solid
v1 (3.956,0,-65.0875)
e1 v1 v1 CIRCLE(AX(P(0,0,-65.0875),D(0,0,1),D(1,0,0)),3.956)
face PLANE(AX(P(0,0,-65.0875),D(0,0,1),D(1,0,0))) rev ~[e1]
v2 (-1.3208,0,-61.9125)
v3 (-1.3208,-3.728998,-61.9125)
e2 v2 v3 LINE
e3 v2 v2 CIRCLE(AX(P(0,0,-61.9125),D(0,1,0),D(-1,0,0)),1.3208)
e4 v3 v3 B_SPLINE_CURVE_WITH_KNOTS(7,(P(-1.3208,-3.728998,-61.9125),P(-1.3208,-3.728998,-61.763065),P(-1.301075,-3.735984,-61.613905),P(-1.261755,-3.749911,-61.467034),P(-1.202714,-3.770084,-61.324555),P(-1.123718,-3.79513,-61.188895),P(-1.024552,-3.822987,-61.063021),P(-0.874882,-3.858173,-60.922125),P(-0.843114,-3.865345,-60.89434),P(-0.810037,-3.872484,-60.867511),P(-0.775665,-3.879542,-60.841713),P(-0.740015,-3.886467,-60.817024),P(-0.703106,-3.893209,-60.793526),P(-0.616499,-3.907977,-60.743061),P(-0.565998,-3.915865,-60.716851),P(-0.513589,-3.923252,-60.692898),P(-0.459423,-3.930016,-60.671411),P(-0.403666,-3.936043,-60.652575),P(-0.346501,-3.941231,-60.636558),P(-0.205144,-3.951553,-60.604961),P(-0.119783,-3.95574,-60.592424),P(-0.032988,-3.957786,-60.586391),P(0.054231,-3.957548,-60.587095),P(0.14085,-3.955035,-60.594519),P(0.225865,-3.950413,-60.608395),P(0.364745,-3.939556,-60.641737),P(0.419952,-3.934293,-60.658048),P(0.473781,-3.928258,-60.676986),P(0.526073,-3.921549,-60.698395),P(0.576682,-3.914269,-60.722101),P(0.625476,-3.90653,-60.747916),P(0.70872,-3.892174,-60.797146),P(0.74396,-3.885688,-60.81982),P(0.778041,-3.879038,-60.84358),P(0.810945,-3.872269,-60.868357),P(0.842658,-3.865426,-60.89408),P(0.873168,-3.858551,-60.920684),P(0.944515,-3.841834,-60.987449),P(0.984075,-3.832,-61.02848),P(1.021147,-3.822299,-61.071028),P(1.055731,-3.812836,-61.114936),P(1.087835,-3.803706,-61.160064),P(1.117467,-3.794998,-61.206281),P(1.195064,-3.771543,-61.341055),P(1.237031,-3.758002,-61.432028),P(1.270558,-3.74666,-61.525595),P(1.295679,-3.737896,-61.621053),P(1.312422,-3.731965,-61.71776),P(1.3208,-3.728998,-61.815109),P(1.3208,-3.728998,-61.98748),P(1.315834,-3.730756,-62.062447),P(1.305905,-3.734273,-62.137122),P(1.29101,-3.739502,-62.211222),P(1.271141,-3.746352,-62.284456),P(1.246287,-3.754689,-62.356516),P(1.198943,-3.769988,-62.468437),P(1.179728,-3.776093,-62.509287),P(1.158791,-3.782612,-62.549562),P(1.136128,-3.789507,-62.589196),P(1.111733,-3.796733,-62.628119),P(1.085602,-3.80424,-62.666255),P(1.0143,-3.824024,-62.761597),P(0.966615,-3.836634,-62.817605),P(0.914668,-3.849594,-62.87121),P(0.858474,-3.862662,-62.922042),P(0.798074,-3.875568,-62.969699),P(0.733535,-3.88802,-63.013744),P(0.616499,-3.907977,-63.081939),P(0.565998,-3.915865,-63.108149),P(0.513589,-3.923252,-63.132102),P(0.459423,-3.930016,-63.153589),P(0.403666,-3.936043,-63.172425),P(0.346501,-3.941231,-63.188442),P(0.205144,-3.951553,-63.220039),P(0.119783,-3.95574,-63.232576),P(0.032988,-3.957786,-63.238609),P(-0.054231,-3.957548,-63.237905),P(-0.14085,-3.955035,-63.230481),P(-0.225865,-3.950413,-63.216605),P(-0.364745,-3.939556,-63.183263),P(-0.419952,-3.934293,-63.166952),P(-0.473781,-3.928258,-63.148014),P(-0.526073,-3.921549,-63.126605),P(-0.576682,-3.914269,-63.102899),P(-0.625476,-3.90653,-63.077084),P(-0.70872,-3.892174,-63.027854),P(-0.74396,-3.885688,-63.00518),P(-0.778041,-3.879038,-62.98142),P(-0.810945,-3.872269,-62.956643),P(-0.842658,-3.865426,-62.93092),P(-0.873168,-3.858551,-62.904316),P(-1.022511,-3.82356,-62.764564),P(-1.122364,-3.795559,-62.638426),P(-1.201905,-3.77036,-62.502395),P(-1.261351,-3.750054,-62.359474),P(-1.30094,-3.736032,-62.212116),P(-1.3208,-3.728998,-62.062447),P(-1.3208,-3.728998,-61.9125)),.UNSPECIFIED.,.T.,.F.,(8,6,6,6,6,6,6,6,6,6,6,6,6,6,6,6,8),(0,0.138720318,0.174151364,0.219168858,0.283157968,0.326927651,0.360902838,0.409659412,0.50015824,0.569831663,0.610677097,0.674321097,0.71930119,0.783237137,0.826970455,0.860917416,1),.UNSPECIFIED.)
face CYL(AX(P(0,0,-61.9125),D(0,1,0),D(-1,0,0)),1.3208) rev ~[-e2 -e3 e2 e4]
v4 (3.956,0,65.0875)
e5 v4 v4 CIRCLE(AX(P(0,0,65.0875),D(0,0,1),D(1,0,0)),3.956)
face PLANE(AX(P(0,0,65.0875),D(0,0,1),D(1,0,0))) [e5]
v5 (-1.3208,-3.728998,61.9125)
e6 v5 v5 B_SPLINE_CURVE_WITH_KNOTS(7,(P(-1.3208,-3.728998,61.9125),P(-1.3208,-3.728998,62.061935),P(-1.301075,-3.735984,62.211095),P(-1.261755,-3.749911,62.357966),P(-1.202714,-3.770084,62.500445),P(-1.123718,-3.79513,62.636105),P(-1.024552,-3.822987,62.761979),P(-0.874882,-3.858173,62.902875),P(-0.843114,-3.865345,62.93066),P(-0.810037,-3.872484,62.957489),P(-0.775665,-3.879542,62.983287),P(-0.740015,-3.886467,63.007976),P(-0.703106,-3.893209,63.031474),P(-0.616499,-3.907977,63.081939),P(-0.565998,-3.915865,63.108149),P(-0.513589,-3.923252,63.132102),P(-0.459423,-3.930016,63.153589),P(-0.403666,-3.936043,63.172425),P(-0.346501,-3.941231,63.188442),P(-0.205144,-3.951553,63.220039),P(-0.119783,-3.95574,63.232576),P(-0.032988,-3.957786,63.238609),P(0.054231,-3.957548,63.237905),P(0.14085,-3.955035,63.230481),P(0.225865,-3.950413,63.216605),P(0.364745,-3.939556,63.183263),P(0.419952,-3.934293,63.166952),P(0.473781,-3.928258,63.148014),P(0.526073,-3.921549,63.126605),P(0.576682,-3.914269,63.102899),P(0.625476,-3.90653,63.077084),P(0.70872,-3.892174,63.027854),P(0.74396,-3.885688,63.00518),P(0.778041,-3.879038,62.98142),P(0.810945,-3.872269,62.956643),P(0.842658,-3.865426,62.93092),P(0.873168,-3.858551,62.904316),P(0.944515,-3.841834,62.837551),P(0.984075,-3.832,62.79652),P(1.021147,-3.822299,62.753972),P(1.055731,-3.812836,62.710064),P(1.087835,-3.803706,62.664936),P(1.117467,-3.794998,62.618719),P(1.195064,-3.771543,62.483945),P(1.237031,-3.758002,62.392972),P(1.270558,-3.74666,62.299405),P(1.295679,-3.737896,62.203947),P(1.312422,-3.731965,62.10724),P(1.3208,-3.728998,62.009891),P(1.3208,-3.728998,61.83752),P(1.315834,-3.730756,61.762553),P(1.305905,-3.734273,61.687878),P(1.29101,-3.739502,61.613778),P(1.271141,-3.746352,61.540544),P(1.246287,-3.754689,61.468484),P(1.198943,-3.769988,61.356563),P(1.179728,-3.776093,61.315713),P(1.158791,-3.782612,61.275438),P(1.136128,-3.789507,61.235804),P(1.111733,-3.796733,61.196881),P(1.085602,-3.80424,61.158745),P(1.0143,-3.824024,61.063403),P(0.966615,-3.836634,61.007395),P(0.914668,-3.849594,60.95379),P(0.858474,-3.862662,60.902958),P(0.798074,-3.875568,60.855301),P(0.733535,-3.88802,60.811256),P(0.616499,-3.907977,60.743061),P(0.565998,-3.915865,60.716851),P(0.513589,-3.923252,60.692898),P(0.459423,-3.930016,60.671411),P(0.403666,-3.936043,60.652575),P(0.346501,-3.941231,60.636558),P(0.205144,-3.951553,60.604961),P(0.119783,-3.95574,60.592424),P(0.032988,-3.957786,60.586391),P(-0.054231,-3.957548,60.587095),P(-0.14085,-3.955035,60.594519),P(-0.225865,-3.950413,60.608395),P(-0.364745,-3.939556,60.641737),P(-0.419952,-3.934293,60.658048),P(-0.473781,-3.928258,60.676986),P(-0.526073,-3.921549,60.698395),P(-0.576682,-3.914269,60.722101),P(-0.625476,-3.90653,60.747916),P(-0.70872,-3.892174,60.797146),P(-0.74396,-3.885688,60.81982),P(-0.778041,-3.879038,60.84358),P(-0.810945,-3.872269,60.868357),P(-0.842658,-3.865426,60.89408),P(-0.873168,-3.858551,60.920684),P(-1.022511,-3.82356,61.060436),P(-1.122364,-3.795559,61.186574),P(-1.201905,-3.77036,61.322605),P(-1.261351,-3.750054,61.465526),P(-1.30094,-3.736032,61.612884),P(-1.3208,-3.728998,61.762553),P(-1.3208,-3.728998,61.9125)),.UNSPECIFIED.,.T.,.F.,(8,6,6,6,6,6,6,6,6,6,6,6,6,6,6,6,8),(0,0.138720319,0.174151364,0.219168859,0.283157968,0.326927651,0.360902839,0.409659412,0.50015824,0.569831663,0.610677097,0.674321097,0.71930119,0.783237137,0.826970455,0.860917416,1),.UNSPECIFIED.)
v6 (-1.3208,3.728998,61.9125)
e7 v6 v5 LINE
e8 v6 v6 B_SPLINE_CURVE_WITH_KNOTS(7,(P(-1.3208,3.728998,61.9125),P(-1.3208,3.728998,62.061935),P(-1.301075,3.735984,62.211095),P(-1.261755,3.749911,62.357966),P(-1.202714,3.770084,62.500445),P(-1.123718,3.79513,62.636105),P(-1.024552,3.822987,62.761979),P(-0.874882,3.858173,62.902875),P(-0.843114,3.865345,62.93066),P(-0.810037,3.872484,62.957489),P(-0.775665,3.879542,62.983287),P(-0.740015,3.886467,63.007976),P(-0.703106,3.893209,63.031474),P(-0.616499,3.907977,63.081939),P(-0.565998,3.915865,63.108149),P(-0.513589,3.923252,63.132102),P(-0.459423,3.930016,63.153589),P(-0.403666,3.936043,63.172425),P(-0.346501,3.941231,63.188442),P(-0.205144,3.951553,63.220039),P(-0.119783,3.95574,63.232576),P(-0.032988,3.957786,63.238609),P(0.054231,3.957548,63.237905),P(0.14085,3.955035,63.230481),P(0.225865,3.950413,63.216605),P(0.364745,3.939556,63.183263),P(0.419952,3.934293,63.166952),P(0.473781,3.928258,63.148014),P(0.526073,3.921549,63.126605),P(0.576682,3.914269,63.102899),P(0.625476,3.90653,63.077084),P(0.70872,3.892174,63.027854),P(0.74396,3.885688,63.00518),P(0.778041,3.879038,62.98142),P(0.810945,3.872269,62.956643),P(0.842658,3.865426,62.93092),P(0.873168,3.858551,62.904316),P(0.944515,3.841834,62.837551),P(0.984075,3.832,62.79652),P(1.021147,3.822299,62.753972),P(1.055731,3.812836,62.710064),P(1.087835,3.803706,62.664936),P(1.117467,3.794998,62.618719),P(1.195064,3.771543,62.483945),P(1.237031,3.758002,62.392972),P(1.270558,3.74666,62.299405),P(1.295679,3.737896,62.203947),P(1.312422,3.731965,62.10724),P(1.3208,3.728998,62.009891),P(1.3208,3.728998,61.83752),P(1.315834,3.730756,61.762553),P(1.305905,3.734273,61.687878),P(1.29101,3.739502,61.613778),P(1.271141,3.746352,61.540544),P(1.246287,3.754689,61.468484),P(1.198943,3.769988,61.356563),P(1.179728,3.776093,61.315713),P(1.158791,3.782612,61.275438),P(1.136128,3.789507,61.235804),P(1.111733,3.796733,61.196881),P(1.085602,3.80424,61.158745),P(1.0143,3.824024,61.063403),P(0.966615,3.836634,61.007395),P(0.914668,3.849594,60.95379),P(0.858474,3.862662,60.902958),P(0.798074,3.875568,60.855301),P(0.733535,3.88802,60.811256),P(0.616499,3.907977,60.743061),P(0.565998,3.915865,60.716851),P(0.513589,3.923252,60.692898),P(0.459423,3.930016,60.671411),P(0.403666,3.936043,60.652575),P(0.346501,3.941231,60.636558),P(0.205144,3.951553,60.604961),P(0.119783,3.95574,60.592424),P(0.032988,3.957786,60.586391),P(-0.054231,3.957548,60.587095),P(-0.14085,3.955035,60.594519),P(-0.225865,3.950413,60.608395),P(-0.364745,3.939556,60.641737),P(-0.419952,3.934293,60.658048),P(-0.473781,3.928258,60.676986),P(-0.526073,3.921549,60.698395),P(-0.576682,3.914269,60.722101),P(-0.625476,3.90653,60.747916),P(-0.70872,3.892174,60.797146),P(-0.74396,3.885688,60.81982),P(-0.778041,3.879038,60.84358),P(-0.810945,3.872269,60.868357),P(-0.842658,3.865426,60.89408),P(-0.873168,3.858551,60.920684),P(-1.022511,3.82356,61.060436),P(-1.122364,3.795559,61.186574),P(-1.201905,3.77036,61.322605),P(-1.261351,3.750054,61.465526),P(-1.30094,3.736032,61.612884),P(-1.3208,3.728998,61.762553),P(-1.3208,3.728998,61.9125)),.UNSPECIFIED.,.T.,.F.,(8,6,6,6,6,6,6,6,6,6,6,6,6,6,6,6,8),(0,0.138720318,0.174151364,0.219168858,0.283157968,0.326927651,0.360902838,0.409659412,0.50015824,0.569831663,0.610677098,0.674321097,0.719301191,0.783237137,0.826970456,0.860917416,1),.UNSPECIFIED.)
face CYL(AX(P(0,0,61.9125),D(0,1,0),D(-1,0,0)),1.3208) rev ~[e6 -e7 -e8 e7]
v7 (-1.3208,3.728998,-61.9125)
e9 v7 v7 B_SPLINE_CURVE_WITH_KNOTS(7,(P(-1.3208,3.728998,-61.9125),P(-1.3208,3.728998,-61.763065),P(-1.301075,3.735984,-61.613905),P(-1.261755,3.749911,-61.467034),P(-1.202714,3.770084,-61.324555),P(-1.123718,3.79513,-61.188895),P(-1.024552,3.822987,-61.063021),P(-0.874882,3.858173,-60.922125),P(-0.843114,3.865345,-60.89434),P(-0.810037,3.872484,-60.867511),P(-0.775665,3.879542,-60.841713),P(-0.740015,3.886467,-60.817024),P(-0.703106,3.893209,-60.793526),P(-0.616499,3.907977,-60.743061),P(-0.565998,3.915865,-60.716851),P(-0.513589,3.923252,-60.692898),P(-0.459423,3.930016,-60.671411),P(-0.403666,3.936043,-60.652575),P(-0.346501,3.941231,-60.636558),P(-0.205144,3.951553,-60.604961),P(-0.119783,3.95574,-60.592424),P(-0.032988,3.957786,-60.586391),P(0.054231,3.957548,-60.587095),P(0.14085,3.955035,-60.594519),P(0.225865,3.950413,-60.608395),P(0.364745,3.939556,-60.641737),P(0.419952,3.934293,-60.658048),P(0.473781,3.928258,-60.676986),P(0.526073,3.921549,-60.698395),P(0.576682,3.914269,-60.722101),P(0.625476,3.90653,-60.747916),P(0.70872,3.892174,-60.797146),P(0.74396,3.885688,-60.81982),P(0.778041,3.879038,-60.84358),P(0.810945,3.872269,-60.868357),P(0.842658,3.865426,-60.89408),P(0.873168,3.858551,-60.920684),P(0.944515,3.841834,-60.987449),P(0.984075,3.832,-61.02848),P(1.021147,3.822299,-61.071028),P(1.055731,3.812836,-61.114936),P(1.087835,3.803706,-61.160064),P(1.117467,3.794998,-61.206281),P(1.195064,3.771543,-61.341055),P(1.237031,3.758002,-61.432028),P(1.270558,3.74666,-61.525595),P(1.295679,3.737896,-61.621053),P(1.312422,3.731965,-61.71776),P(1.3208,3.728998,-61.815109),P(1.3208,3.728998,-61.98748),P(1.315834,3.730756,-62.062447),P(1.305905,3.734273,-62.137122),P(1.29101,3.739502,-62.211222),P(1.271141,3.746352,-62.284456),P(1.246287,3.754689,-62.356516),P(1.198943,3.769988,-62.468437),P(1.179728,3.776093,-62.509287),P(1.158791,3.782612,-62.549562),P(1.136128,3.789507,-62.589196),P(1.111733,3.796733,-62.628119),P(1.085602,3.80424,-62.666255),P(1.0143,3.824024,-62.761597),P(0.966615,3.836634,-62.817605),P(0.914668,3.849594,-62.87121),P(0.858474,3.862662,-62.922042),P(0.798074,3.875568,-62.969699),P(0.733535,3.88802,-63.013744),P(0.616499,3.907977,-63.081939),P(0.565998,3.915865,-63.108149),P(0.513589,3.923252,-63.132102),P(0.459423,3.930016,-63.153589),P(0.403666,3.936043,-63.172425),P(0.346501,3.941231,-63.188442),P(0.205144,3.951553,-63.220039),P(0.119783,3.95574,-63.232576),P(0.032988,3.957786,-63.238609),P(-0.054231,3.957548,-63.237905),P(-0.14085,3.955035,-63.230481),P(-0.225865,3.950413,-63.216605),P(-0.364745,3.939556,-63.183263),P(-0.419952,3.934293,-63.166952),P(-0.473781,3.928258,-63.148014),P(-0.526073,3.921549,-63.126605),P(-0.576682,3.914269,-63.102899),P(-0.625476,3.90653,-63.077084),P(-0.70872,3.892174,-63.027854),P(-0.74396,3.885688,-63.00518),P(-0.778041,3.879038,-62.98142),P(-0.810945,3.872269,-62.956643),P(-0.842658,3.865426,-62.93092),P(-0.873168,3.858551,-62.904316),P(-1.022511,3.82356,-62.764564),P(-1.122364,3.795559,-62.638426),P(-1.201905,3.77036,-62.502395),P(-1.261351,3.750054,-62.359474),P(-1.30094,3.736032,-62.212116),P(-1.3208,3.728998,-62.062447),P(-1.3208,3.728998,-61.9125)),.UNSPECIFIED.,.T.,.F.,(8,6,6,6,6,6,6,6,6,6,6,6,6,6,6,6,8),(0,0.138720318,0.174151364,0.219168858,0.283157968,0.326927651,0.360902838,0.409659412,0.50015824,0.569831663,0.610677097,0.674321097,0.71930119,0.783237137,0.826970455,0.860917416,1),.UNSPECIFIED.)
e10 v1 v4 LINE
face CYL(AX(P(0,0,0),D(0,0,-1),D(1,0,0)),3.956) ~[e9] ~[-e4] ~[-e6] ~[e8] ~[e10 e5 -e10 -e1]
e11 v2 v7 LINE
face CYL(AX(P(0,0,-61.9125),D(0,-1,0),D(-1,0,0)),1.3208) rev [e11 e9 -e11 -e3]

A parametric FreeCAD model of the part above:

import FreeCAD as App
import Part
import Sketcher
from FreeCAD import Vector
Q = App.Units.Quantity

doc = App.newDocument("Part")
body = doc.addObject("PartDesign::Body", "Body")

# Sketch on XY plane
sketch1 = body.newObject("Sketcher::SketchObject", "Sketch")
sketch1.AttachmentSupport = (doc.getObject("XY_Plane"), [""])
sketch1.MapMode = "FlatFace"
sketch1.addGeometry(Part.Circle(Vector(0, 0, 0), Vector(0, 0, 1), 3.956), False)
sketch1.addConstraint([
    Sketcher.Constraint("Coincident", 0, 3, -1, 1),
    Sketcher.Constraint("Diameter", 0, Q("0.3115 in")),
])
pad1 = body.newObject("PartDesign::Pad", "Pad")
pad1.Profile = sketch1
pad1.Length = Q("5.125 in")
pad1.Midplane = True

# Sketch on XZ plane
sketch2 = body.newObject("Sketcher::SketchObject", "Sketch001")
sketch2.AttachmentSupport = (doc.getObject("XZ_Plane"), [""])
sketch2.MapMode = "FlatFace"
sketch2.addGeometry([
    Part.Circle(Vector(0, -61.9125, 0), Vector(0, 0, 1), 1.3208),
    Part.Circle(Vector(0, 61.9125, 0), Vector(0, 0, 1), 1.3208),
], False)
sketch2.addConstraint([
    Sketcher.Constraint("Equal", 0, 1),
    Sketcher.Constraint("Symmetric", 0, 3, 1, 3, -1, 1),
    Sketcher.Constraint("PointOnObject", 0, 3, -2),
    Sketcher.Constraint("Diameter", 0, Q("0.104 in")),
    Sketcher.Constraint("DistanceY", 0, 3, -1, 1, Q("2.4375 in")),
])
pocket1 = body.newObject("PartDesign::Pocket", "Pocket")
pocket1.Profile = sketch2
pocket1.Type = "ThroughAll"
pocket1.Midplane = True

doc.recompute()
